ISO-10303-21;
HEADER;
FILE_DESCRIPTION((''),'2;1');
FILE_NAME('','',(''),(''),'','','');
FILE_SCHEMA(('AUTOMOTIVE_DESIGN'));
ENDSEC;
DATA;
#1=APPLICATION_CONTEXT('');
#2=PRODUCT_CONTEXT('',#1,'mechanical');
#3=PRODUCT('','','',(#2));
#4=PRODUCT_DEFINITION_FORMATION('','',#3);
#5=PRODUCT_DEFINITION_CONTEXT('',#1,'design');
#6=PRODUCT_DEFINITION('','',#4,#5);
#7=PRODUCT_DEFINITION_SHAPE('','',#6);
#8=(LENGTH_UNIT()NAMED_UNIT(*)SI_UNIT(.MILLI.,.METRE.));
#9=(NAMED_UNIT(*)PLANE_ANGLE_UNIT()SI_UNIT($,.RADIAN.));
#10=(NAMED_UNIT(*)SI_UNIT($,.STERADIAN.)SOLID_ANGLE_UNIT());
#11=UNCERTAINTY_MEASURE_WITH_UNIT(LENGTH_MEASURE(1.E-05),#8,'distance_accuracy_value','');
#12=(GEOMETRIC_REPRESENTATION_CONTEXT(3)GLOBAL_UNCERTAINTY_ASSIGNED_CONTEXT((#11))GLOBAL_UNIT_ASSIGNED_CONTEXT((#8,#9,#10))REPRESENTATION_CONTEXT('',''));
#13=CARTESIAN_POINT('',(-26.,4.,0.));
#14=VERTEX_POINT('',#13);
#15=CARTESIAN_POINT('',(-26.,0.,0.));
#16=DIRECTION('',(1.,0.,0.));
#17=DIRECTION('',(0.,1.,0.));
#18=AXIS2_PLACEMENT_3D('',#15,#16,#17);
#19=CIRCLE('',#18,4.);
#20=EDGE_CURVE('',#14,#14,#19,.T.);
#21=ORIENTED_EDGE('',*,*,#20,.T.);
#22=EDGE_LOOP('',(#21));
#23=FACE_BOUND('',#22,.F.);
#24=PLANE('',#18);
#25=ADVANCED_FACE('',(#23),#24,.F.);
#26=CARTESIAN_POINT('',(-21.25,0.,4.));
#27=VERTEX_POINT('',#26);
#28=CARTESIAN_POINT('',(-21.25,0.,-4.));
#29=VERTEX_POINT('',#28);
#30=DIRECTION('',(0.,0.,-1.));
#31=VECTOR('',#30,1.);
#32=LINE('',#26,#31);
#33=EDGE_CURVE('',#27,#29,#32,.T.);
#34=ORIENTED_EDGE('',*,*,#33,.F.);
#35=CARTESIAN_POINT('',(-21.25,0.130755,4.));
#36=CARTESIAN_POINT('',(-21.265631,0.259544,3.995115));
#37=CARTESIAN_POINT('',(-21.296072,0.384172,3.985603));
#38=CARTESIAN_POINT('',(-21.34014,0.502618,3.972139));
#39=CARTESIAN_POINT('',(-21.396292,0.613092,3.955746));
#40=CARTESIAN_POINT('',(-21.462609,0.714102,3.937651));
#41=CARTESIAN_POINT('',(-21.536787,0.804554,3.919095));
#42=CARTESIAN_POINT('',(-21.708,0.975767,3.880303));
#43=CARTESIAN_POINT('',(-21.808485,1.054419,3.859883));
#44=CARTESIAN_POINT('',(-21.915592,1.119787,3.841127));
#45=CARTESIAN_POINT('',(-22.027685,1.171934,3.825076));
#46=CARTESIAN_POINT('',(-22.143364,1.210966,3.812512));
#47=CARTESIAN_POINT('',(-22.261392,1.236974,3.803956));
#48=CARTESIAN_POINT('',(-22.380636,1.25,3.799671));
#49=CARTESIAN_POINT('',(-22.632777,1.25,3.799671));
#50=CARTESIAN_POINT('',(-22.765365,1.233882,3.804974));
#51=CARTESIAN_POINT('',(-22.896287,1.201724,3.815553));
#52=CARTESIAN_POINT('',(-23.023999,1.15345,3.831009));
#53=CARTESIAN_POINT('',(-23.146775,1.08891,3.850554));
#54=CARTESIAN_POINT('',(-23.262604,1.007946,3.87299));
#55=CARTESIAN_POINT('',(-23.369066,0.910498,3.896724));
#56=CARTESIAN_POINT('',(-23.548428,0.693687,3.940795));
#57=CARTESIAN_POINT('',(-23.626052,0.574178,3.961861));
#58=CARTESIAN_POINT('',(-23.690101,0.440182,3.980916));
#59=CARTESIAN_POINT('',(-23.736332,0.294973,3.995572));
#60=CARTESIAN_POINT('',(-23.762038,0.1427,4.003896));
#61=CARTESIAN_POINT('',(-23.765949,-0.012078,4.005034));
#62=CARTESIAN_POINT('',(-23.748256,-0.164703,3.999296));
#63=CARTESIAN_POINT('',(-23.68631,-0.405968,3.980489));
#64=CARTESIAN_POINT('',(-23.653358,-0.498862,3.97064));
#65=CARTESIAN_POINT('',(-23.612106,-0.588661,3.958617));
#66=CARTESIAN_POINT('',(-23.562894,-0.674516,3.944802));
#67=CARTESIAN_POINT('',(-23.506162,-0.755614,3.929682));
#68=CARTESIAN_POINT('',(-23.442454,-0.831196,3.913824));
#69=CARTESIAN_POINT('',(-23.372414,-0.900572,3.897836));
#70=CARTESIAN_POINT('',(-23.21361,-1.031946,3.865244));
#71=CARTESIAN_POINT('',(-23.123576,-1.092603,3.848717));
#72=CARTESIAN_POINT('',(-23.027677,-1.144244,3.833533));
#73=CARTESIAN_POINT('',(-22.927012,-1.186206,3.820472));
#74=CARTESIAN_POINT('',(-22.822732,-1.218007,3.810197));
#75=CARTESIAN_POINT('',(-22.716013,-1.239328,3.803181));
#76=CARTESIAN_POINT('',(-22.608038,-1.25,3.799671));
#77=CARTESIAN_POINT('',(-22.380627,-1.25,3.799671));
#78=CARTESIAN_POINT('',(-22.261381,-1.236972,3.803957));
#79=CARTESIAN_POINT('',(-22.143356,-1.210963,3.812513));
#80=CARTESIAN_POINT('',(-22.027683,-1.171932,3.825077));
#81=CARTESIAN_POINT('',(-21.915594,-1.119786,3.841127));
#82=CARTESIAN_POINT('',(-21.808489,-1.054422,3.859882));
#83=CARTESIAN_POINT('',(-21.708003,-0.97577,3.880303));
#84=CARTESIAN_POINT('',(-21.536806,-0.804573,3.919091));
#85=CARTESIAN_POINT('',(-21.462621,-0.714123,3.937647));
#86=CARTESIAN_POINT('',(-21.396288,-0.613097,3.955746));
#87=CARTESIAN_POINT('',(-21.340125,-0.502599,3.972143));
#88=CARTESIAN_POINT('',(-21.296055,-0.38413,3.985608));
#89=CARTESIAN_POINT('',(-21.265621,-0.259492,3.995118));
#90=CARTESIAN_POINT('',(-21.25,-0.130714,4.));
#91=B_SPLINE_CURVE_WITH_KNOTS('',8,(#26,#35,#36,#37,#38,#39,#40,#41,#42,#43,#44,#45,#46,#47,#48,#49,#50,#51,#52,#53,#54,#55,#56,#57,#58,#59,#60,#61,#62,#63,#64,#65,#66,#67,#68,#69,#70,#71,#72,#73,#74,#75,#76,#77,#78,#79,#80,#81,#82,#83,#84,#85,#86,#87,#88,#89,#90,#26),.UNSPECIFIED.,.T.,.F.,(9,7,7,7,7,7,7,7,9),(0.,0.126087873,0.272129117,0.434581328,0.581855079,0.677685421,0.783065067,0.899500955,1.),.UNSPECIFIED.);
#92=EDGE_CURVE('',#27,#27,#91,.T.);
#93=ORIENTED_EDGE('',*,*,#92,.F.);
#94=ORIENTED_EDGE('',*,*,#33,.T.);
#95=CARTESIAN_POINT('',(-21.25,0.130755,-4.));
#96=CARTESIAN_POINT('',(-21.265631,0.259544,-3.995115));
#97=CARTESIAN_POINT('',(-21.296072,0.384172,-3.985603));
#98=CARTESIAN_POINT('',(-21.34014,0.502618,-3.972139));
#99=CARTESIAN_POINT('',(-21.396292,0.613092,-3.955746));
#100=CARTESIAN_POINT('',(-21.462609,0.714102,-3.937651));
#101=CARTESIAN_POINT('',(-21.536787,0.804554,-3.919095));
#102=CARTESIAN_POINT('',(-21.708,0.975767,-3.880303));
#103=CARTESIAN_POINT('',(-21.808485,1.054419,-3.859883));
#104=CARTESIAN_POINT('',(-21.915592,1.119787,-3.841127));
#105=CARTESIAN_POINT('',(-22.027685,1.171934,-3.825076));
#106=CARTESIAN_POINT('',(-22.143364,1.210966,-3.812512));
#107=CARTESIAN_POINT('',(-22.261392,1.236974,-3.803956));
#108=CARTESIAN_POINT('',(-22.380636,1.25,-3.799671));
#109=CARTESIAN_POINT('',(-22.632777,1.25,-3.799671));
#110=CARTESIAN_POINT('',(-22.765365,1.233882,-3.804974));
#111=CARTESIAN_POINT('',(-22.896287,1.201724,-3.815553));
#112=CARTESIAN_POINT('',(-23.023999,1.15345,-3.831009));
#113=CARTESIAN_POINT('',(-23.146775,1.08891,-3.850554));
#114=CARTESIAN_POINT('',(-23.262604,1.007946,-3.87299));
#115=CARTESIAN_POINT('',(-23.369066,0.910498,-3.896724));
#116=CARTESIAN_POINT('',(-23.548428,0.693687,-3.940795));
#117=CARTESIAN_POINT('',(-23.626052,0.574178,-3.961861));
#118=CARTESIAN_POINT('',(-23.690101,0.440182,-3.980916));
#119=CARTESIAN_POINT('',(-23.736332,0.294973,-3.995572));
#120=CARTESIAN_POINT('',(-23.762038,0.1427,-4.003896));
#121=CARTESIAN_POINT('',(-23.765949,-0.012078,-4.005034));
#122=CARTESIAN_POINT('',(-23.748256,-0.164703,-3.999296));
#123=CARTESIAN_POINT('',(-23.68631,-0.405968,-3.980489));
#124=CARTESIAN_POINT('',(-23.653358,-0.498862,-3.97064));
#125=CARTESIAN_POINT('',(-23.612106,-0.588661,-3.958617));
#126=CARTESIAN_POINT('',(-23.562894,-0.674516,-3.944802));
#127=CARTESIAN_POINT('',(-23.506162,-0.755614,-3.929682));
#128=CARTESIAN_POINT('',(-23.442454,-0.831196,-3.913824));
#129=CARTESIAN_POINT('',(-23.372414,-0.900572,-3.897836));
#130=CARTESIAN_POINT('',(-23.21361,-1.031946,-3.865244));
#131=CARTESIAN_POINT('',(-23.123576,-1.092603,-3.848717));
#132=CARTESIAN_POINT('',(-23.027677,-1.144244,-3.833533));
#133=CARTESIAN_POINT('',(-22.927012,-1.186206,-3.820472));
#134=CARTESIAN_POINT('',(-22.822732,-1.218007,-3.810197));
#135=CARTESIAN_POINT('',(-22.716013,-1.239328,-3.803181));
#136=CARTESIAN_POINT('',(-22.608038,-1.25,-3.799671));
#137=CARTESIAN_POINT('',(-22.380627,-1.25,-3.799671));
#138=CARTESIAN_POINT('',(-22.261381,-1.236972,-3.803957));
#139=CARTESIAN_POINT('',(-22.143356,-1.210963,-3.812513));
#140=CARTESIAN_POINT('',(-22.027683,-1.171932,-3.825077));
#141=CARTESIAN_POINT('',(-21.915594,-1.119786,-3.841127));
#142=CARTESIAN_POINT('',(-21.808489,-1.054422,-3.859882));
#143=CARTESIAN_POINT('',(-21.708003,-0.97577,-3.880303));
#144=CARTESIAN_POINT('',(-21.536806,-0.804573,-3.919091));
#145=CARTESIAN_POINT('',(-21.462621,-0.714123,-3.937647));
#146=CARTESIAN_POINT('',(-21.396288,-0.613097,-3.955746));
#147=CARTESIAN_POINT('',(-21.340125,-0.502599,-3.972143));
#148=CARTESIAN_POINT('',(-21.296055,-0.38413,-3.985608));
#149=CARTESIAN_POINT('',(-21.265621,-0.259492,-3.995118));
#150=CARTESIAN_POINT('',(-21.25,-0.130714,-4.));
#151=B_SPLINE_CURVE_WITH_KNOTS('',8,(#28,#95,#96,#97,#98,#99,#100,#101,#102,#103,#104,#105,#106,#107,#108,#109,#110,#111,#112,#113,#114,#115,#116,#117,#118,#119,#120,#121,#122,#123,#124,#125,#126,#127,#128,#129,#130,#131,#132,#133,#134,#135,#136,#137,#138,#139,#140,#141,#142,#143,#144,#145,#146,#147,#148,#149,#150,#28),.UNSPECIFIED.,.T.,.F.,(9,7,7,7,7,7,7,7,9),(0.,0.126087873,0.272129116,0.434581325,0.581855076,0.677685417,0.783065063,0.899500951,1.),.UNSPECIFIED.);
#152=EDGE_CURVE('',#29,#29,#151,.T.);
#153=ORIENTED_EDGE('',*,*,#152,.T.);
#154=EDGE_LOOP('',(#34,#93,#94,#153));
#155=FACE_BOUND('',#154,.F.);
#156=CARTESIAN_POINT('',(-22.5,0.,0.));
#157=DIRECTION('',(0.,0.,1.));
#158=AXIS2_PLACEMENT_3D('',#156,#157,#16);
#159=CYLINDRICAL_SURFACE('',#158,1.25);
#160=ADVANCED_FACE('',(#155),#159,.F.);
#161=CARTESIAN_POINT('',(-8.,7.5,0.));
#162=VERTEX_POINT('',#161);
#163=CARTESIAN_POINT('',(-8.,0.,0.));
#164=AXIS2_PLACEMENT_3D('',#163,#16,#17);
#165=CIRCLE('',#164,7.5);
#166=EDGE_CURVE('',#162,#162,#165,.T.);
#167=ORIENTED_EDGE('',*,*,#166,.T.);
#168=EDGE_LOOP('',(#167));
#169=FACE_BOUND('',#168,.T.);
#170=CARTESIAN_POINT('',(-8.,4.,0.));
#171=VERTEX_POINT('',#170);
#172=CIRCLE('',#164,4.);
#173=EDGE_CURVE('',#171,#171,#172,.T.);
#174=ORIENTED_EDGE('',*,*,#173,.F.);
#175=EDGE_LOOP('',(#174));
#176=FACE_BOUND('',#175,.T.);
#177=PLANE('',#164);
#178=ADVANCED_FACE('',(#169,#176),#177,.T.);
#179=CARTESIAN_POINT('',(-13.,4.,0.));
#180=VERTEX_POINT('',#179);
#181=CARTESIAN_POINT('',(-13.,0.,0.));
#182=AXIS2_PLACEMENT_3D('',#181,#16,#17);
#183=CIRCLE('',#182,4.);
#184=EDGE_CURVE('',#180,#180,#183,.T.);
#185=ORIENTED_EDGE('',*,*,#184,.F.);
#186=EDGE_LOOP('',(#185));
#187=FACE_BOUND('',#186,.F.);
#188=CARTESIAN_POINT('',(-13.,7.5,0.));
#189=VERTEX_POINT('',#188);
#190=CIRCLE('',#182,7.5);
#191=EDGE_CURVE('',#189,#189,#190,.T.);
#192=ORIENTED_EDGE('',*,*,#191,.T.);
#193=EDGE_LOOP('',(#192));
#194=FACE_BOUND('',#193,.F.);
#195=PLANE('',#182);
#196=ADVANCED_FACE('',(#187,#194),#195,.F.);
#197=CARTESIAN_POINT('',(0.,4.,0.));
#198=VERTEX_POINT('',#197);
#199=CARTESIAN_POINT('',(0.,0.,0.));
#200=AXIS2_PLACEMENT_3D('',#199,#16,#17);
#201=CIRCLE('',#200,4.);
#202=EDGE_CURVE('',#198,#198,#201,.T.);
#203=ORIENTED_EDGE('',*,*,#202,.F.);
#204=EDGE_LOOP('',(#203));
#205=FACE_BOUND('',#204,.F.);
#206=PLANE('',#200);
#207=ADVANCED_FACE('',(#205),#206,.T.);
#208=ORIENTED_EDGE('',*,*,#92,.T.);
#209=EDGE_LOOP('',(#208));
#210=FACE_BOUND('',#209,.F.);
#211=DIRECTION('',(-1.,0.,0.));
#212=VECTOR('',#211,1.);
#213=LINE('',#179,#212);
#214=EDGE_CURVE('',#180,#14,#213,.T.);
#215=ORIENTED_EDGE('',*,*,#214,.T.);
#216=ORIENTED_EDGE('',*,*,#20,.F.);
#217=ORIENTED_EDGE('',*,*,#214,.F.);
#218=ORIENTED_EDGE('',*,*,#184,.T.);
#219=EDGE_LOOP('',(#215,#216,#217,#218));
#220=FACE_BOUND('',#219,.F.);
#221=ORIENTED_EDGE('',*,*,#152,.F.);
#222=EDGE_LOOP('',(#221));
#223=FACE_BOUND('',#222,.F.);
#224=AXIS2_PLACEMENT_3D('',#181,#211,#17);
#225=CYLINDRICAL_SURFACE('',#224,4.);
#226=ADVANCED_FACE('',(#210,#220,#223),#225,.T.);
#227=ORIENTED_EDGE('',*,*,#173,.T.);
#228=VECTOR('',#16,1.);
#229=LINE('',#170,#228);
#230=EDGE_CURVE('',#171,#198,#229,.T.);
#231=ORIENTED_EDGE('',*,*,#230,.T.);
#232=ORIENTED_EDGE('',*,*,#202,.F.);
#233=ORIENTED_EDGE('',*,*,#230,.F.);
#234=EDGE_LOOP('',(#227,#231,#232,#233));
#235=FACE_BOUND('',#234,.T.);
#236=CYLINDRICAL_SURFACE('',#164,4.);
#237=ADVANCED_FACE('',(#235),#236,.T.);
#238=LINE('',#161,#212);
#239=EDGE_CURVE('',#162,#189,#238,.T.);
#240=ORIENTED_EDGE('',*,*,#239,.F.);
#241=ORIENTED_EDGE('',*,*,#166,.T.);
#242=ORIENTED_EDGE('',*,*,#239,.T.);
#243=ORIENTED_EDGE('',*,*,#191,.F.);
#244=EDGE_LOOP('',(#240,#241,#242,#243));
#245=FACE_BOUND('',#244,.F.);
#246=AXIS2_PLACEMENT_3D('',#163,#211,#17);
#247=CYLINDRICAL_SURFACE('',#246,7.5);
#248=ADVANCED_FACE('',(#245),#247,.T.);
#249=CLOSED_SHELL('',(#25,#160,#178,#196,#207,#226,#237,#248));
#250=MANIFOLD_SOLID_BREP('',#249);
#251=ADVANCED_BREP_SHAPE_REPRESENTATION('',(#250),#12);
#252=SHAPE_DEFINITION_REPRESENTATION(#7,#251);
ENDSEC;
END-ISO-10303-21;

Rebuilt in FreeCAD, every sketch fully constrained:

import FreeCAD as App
import Part
import Sketcher
from FreeCAD import Vector
Q = App.Units.Quantity


def add_polygon(sketch, points):
    """Adds a closed chain of lines whose ends are joined by coincident constraints."""
    first, n = sketch.GeometryCount, len(points)
    for a, b in zip(points, points[1:] + points[:1]):
        sketch.addGeometry(Part.LineSegment(App.Vector(*a, 0), App.Vector(*b, 0)), False)
    for i in range(n):
        sketch.addConstraint(Sketcher.Constraint("Coincident", first + i, 2, first + (i + 1) % n, 1))

doc = App.newDocument("Part")
params = doc.addObject("Spreadsheet::Sheet", "Params")
for row, (alias, value) in enumerate([
    ("sketch1_width", "5 mm"),
    ("sketch1_width2", "13 mm"),
    ("sketch1_width3", "8 mm"),
    ("sketch1_height", "4 mm"),
    ("sketch1_height2", "3.5 mm"),
    ("revolution_angle", "360 deg"),
    ("sketch2_diameter", "2.5 mm"),
    ("pocket1_length", "100 mm"),
], start=1):
    params.set(f"A{row}", alias)
    params.set(f"B{row}", "=" + value)
    params.setAlias(f"B{row}", alias)

body = doc.addObject("PartDesign::Body", "Body")

# Sketch on XY plane
sketch1 = doc.addObject("Sketcher::SketchObject", "Sketch")
body.addObject(sketch1)
sketch1.AttachmentSupport = (doc.XY_Plane, [""])
sketch1.MapMode = "FlatFace"
add_polygon(sketch1, [(-8, 4), (-8, 7.5), (-13, 7.5), (-13, 4), (-26, 4), (-26, 0), (0, 0), (0, 4)])  # lines 0-7
sketch1.addConstraint([
    Sketcher.Constraint("Vertical", 0),
    Sketcher.Constraint("Horizontal", 1),
    Sketcher.Constraint("Vertical", 2),
    Sketcher.Constraint("Horizontal", 3),
    Sketcher.Constraint("Vertical", 4),
    Sketcher.Constraint("Horizontal", 5),
    Sketcher.Constraint("Vertical", 6),
    Sketcher.Constraint("Horizontal", 7),
    Sketcher.Constraint("Coincident", 5, 2, -1, 1),
    Sketcher.Constraint("Horizontal", 3, 2, 6, 2),
    Sketcher.Constraint("DistanceX", 1, 2, 1, 1, Q("5 mm")),
    Sketcher.Constraint("DistanceX", 3, 2, 3, 1, Q("13 mm")),
    Sketcher.Constraint("DistanceX", 7, 2, 7, 1, Q("8 mm")),
    Sketcher.Constraint("DistanceY", 4, 2, 4, 1, Q("4 mm")),
    Sketcher.Constraint("DistanceY", 0, 1, 0, 2, Q("3.5 mm")),
])
sketch1.setExpression("Constraints[18]", "Params.sketch1_width")
sketch1.setExpression("Constraints[19]", "Params.sketch1_width2")
sketch1.setExpression("Constraints[20]", "Params.sketch1_width3")
sketch1.setExpression("Constraints[21]", "Params.sketch1_height")
sketch1.setExpression("Constraints[22]", "Params.sketch1_height2")
revolution = doc.addObject("PartDesign::Revolution", "Revolution")
body.addObject(revolution)
revolution.Profile = sketch1
revolution.ReferenceAxis = (sketch1, ["H_Axis"])
revolution.setExpression("Angle", "Params.revolution_angle")

# Sketch on XY plane
sketch2 = doc.addObject("Sketcher::SketchObject", "Sketch001")
body.addObject(sketch2)
sketch2.AttachmentSupport = (doc.XY_Plane, [""])
sketch2.MapMode = "FlatFace"
sketch2.addGeometry(Part.Circle(Vector(-22.5, 0, 0), Vector(0, 0, 1), 1.2), False)
sketch2.addConstraint([
    Sketcher.Constraint("PointOnObject", 0, 3, -1),
    Sketcher.Constraint("Diameter", 0, Q("2.5 mm")),
    Sketcher.Constraint("DistanceX", 0, 3, -1, 1, Q("22.5 mm")),
])
sketch2.setExpression("Constraints[1]", "Params.sketch2_diameter")
pocket1 = doc.addObject("PartDesign::Pocket", "Pocket")
body.addObject(pocket1)
pocket1.Profile = sketch2
pocket1.setExpression("Length", "Params.pocket1_length")
pocket1.Midplane = True

doc.recompute()
